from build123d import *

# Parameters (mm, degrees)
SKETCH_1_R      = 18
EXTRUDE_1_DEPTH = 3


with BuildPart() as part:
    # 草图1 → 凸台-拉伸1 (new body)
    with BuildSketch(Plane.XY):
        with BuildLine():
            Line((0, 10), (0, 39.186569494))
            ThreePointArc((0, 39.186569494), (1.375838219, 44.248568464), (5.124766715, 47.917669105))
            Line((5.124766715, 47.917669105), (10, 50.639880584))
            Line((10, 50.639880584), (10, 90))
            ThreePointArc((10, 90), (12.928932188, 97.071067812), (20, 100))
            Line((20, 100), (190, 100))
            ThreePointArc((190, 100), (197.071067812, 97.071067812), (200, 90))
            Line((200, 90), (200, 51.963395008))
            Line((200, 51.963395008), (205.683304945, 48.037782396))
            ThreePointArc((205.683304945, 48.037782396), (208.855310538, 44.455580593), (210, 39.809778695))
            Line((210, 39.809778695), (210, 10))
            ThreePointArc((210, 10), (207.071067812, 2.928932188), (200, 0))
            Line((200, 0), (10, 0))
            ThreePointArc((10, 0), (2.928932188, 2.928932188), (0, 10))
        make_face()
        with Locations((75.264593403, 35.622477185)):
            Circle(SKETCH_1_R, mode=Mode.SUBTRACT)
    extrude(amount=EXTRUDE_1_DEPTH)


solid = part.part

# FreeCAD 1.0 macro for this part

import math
import FreeCAD as App
import Part
import Sketcher
Q = App.Units.Quantity

doc = App.newDocument("Part")
body = doc.addObject("PartDesign::Body", "Body")

sketch1 = body.newObject("Sketcher::SketchObject", "Sketch")
sketch1.AttachmentSupport = (doc.getObject("XY_Plane"), [""])
sketch1.MapMode = "FlatFace"
sketch1.addGeometry([
    Part.LineSegment(App.Vector(0, 39.186569, 0), App.Vector(0, 10, 0)),
    Part.ArcOfCircle(Part.Circle(App.Vector(10, 10, 0), App.Vector(0, 0, 1), 10), math.radians(180), math.radians(270)),
    Part.LineSegment(App.Vector(10, 0, 0), App.Vector(200, 0, 0)),
    Part.ArcOfCircle(Part.Circle(App.Vector(200, 10, 0), App.Vector(0, 0, 1), 10), math.radians(-90), math.radians(0)),
    Part.LineSegment(App.Vector(210, 10, 0), App.Vector(210, 39.809779, 0)),
    Part.ArcOfCircle(Part.Circle(App.Vector(200, 39.809779, 0), App.Vector(0, 0, 1), 10), math.radians(0), math.radians(55.366112)),
    Part.LineSegment(App.Vector(205.683305, 48.037782, 0), App.Vector(200, 51.963395, 0)),
    Part.LineSegment(App.Vector(200, 51.963395, 0), App.Vector(200, 90, 0)),
    Part.ArcOfCircle(Part.Circle(App.Vector(190, 90, 0), App.Vector(0, 0, 1), 10), math.radians(0), math.radians(90)),
    Part.LineSegment(App.Vector(190, 100, 0), App.Vector(20, 100, 0)),
    Part.ArcOfCircle(Part.Circle(App.Vector(20, 90, 0), App.Vector(0, 0, 1), 10), math.radians(90), math.radians(180)),
    Part.LineSegment(App.Vector(10, 90, 0), App.Vector(10, 50.639881, 0)),
    Part.LineSegment(App.Vector(10, 50.639881, 0), App.Vector(5.124767, 47.917669, 0)),
    Part.ArcOfCircle(Part.Circle(App.Vector(10, 39.186569, 0), App.Vector(0, 0, 1), 10), math.radians(119.177927), math.radians(180)),
    Part.Circle(App.Vector(75.264593, 35.622477, 0), App.Vector(0, 0, 1), 18),
], False)
sketch1.addConstraint([
    Sketcher.Constraint("Tangent", 0, 2, 1, 1),
    Sketcher.Constraint("Tangent", 1, 2, 2, 1),
    Sketcher.Constraint("Tangent", 2, 2, 3, 1),
    Sketcher.Constraint("Tangent", 3, 2, 4, 1),
    Sketcher.Constraint("Tangent", 4, 2, 5, 1),
    Sketcher.Constraint("Tangent", 5, 2, 6, 1),
    Sketcher.Constraint("Coincident", 6, 2, 7, 1),
    Sketcher.Constraint("Tangent", 7, 2, 8, 1),
    Sketcher.Constraint("Tangent", 8, 2, 9, 1),
    Sketcher.Constraint("Tangent", 9, 2, 10, 1),
    Sketcher.Constraint("Tangent", 10, 2, 11, 1),
    Sketcher.Constraint("Coincident", 11, 2, 12, 1),
    Sketcher.Constraint("Tangent", 12, 2, 13, 1),
    Sketcher.Constraint("Tangent", 13, 2, 0, 1),
    Sketcher.Constraint("Vertical", 0),
    Sketcher.Constraint("Horizontal", 2),
    Sketcher.Constraint("Vertical", 4),
    Sketcher.Constraint("Vertical", 7),
    Sketcher.Constraint("Horizontal", 9),
    Sketcher.Constraint("Vertical", 11),
    Sketcher.Constraint("Equal", 1, 3),
    Sketcher.Constraint("Equal", 3, 5),
    Sketcher.Constraint("Equal", 5, 8),
    Sketcher.Constraint("Equal", 8, 10),
    Sketcher.Constraint("Equal", 10, 13),
    Sketcher.Constraint("PointOnObject", 0, 2, -2),
    Sketcher.Constraint("PointOnObject", 1, 2, -1),
    Sketcher.Constraint("Vertical", 2, 2, 6, 2),
    Sketcher.Constraint("Vertical", 1, 2, 10, 2),
    Sketcher.Constraint("Diameter", 14, Q("36 mm")),
    Sketcher.Constraint("Radius", 1, Q("10 mm")),
    Sketcher.Constraint("DistanceX", 2, 1, 2, 2, Q("190 mm")),
    Sketcher.Constraint("DistanceY", -1, 1, 8, 3, Q("90 mm")),
    Sketcher.Constraint("DistanceY", 0, 2, 0, 1, Q("29.186569 mm")),
    Sketcher.Constraint("DistanceY", 4, 1, 4, 2, Q("29.809779 mm")),
    Sketcher.Constraint("DistanceY", 11, 2, 11, 1, Q("39.360119 mm")),
    Sketcher.Constraint("DistanceY", 14, 3, 5, 3, Q("4.187302 mm")),
    Sketcher.Constraint("Distance", 6, Q("6.907271 mm")),
    Sketcher.Constraint("DistanceX", -1, 1, 14, 3, Q("75.264593 mm")),
])
pad1 = body.newObject("PartDesign::Pad", "Pad")
pad1.Profile = sketch1
pad1.Length = 3

doc.recompute()
